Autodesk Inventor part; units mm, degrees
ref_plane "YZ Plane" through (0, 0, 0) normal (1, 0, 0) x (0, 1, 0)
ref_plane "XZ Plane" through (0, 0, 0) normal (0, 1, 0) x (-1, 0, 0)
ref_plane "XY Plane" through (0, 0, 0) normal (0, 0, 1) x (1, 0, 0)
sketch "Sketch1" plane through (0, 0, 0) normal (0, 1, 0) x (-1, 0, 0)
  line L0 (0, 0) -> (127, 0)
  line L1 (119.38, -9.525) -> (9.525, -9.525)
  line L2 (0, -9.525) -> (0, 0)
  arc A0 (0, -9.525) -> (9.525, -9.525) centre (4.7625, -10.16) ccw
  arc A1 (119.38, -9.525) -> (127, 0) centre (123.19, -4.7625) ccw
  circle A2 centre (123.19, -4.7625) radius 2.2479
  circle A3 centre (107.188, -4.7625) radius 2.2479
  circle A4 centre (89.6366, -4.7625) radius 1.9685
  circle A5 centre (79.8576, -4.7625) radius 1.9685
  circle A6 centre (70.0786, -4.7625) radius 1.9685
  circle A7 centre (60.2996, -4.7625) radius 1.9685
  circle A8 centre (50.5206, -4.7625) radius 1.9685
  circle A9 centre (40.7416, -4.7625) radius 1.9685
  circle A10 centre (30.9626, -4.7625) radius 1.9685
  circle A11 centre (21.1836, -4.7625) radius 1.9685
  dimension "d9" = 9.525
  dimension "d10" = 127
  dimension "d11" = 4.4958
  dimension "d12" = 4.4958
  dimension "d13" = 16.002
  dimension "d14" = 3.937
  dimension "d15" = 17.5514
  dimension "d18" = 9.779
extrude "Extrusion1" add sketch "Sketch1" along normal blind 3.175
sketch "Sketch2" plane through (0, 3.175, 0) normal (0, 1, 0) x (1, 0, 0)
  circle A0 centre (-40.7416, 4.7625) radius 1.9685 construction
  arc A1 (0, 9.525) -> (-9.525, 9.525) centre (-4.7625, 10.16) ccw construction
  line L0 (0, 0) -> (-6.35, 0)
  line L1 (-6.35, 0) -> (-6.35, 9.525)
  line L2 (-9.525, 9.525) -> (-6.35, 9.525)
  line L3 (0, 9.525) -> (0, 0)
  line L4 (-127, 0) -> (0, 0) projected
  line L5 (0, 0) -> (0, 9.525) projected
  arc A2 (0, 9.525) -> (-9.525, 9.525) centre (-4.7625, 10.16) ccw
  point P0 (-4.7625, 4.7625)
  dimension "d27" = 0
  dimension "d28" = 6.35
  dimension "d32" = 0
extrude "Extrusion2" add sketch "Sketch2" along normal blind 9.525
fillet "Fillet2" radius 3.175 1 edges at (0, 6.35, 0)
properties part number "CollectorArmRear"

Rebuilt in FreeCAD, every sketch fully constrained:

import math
import FreeCAD as App
import Part
import Sketcher

V = App.Vector
Q = App.Units.Quantity


def edges_at(feature, points):
    """Names of the edges that pass closest to the given points."""
    edges = feature.Shape.Edges
    near = lambda p: min(range(len(edges)), key=lambda i: edges[i].distToShape(Part.Vertex(*p))[0])
    return sorted({f"Edge{near(p) + 1}" for p in points})

doc = App.newDocument("Part")
params = doc.addObject("Spreadsheet::Sheet", "Params")
for row, (alias, value) in enumerate([
    ("sketch1_width", "5 in"),
    ("sketch1_diameter", "0.155 in"),
    ("sketch1_diameter2", "0.177 in"),
    ("sketch1_height", "0.375 in"),
    ("pad1_length", "0.125 in"),
    ("sketch2_width", "0.25 in"),
    ("sketch2_width2", "0.125 in"),
    ("sketch2_height", "0.375 in"),
    ("pad2_length", "0.375 in"),
    ("fillet_radius", "0.125 in"),
], start=1):
    params.set(f"A{row}", alias)
    params.set(f"B{row}", "=" + value)
    params.setAlias(f"B{row}", alias)

body = doc.addObject("PartDesign::Body", "Body")

sketch1 = body.newObject("Sketcher::SketchObject", "Sketch")
sketch1.AttachmentSupport = (doc.getObject("XZ_Plane"), [""])
sketch1.MapMode = "FlatFace"
sketch1.addGeometry([
    Part.LineSegment(V(-127, 0, 0), V(0, 0, 0)),
    Part.LineSegment(V(0, 0, 0), V(0, -9.5, 0)),
    Part.ArcOfCircle(Part.Circle(V(-4.8, -10.2, 0), V(0, 0, 1), 4.8), math.radians(172), math.radians(368)),
    Part.LineSegment(V(-9.5, -9.5, 0), V(-119.4, -9.5, 0)),
    Part.ArcOfCircle(Part.Circle(V(-123.2, -4.8, 0), V(0, 0, 1), 6.1), math.radians(129), math.radians(309)),
    Part.Circle(V(-21.2, -4.8, 0), V(0, 0, 1), 2),
    Part.Circle(V(-31, -4.8, 0), V(0, 0, 1), 2),
    Part.Circle(V(-40.7, -4.8, 0), V(0, 0, 1), 2),
    Part.Circle(V(-50.5, -4.8, 0), V(0, 0, 1), 2),
    Part.Circle(V(-60.3, -4.8, 0), V(0, 0, 1), 2),
    Part.Circle(V(-70.1, -4.8, 0), V(0, 0, 1), 2),
    Part.Circle(V(-79.9, -4.8, 0), V(0, 0, 1), 2),
    Part.Circle(V(-89.6, -4.8, 0), V(0, 0, 1), 2),
    Part.Circle(V(-107.2, -4.8, 0), V(0, 0, 1), 2.2),
    Part.Circle(V(-123.2, -4.8, 0), V(0, 0, 1), 2.2),
], False)
sketch1.addConstraint([
    Sketcher.Constraint("Coincident", 0, 2, 1, 1),
    Sketcher.Constraint("Coincident", 1, 2, 2, 2),
    Sketcher.Constraint("Coincident", 2, 1, 3, 1),
    Sketcher.Constraint("Coincident", 3, 2, 4, 2),
    Sketcher.Constraint("Coincident", 4, 1, 0, 1),
    Sketcher.Constraint("Horizontal", 0),
    Sketcher.Constraint("Vertical", 1),
    Sketcher.Constraint("Horizontal", 3),
    Sketcher.Constraint("Coincident", 0, 2, -1, 1),
    Sketcher.Constraint("Coincident", 14, 3, 4, 3),
    Sketcher.Constraint("Equal", 5, 6),
    Sketcher.Constraint("Equal", 6, 7),
    Sketcher.Constraint("Equal", 7, 8),
    Sketcher.Constraint("Equal", 8, 9),
    Sketcher.Constraint("Equal", 9, 10),
    Sketcher.Constraint("Equal", 10, 11),
    Sketcher.Constraint("Equal", 11, 12),
    Sketcher.Constraint("Equal", 13, 14),
    Sketcher.Constraint("Horizontal", 4, 3, 5, 3),
    Sketcher.Constraint("Horizontal", 5, 3, 6, 3),
    Sketcher.Constraint("Horizontal", 6, 3, 7, 3),
    Sketcher.Constraint("Horizontal", 7, 3, 8, 3),
    Sketcher.Constraint("Horizontal", 8, 3, 9, 3),
    Sketcher.Constraint("Horizontal", 9, 3, 10, 3),
    Sketcher.Constraint("Horizontal", 10, 3, 11, 3),
    Sketcher.Constraint("Horizontal", 11, 3, 12, 3),
    Sketcher.Constraint("Horizontal", 12, 3, 13, 3),
    Sketcher.Constraint("Horizontal", 1, 2, 2, 1),
    Sketcher.Constraint("DistanceX", 0, 1, 0, 2, Q("5 in")),
    Sketcher.Constraint("Diameter", 5, Q("0.155 in")),
    Sketcher.Constraint("Diameter", 13, Q("0.177 in")),
    Sketcher.Constraint("DistanceY", 1, 2, 1, 1, Q("0.375 in")),
    Sketcher.Constraint("DistanceX", 4, 3, 13, 3, Q("0.63 in")),
    Sketcher.Constraint("DistanceX", 2, 1, -1, 1, Q("0.375 in")),
    Sketcher.Constraint("DistanceX", 6, 3, 5, 3, Q("0.385 in")),
    Sketcher.Constraint("DistanceX", 7, 3, 6, 3, Q("0.385 in")),
    Sketcher.Constraint("DistanceX", 8, 3, 7, 3, Q("0.385 in")),
    Sketcher.Constraint("DistanceX", 9, 3, 8, 3, Q("0.385 in")),
    Sketcher.Constraint("DistanceX", 10, 3, 9, 3, Q("0.385 in")),
    Sketcher.Constraint("DistanceX", 11, 3, 10, 3, Q("0.385 in")),
    Sketcher.Constraint("DistanceX", 12, 3, 11, 3, Q("0.385 in")),
    Sketcher.Constraint("DistanceX", 13, 3, 12, 3, Q("0.691 in")),
    Sketcher.Constraint("DistanceY", 2, 3, -1, 1, Q("0.4 in")),
    Sketcher.Constraint("DistanceX", 3, 2, -1, 1, Q("4.7 in")),
    Sketcher.Constraint("DistanceX", 4, 3, -1, 1, Q("4.85 in")),
])
sketch1.setExpression("Constraints[28]", "Params.sketch1_width")
sketch1.setExpression("Constraints[29]", "Params.sketch1_diameter")
sketch1.setExpression("Constraints[30]", "Params.sketch1_diameter2")
sketch1.setExpression("Constraints[31]", "Params.sketch1_height")
pad1 = body.newObject("PartDesign::Pad", "Pad")
pad1.Profile = sketch1
pad1.setExpression("Length", "Params.pad1_length")
pad1.Reversed = True

sketch2 = body.newObject("Sketcher::SketchObject", "Sketch001")
sketch2.AttachmentSupport = (doc.getObject("XZ_Plane"), [""])
sketch2.MapMode = "FlatFace"
sketch2.AttachmentOffset = App.Placement(V(0, 0, -0.125 * 25.4), App.Rotation())
sketch2.addGeometry([
    Part.LineSegment(V(-6.3, 0, 0), V(0, 0, 0)),
    Part.LineSegment(V(0, 0, 0), V(0, -9.5, 0)),
    Part.ArcOfCircle(Part.Circle(V(-4.8, -10.2, 0), V(0, 0, 1), 4.8), math.radians(172), math.radians(368)),
    Part.LineSegment(V(-9.5, -9.5, 0), V(-6.3, -9.5, 0)),
    Part.LineSegment(V(-6.3, -9.5, 0), V(-6.3, 0, 0)),
], False)
sketch2.addConstraint([
    Sketcher.Constraint("Coincident", 0, 2, 1, 1),
    Sketcher.Constraint("Coincident", 1, 2, 2, 2),
    Sketcher.Constraint("Coincident", 2, 1, 3, 1),
    Sketcher.Constraint("Coincident", 3, 2, 4, 1),
    Sketcher.Constraint("Coincident", 4, 2, 0, 1),
    Sketcher.Constraint("Horizontal", 0),
    Sketcher.Constraint("Vertical", 1),
    Sketcher.Constraint("Horizontal", 3),
    Sketcher.Constraint("Vertical", 4),
    Sketcher.Constraint("Coincident", 0, 2, -1, 1),
    Sketcher.Constraint("Horizontal", 1, 2, 2, 1),
    Sketcher.Constraint("DistanceX", 0, 1, 0, 2, Q("0.25 in")),
    Sketcher.Constraint("DistanceY", 2, 3, -1, 1, Q("0.4 in")),
    Sketcher.Constraint("DistanceX", 3, 1, 3, 2, Q("0.125 in")),
    Sketcher.Constraint("DistanceY", 1, 2, 1, 1, Q("0.375 in")),
])
sketch2.setExpression("Constraints[11]", "Params.sketch2_width")
sketch2.setExpression("Constraints[13]", "Params.sketch2_width2")
sketch2.setExpression("Constraints[14]", "Params.sketch2_height")
pad2 = body.newObject("PartDesign::Pad", "Pad001")
pad2.Profile = sketch2
pad2.setExpression("Length", "Params.pad2_length")
pad2.Reversed = True
doc.recompute()

fillet = body.newObject("PartDesign::Fillet", "Fillet")
fillet.Base = (pad2, edges_at(pad2, [(0, 6.35, 0)]))
fillet.setExpression("Radius", "Params.fillet_radius")

doc.recompute()
